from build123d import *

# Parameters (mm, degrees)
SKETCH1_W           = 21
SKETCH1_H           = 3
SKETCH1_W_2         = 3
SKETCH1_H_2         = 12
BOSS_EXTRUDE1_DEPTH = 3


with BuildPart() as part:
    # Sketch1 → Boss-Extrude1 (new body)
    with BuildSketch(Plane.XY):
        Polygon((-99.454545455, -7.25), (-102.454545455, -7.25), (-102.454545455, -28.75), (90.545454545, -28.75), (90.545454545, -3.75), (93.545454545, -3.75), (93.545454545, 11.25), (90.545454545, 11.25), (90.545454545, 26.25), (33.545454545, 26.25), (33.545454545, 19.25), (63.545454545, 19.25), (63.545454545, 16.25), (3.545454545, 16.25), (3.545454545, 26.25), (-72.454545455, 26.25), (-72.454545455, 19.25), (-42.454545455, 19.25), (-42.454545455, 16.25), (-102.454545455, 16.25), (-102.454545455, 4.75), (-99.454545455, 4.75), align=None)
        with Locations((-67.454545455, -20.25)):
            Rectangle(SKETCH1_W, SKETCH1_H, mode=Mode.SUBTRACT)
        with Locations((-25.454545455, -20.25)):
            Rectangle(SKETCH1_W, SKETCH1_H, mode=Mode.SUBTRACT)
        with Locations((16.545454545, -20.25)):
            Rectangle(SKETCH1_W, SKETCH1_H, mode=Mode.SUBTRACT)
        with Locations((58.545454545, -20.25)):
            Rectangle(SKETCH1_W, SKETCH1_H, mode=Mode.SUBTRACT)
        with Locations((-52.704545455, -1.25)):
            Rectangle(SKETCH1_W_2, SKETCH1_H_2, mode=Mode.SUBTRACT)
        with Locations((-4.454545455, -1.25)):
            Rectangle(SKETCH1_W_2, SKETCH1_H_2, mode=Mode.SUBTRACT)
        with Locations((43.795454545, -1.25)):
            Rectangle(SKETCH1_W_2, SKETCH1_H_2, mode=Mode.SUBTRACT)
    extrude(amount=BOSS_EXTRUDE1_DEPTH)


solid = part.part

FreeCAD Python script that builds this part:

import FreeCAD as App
import Part
import Sketcher
from FreeCAD import Vector


def add_polygon(sketch, points):
    """Adds a closed chain of lines whose ends are joined by coincident constraints."""
    first, n = sketch.GeometryCount, len(points)
    for a, b in zip(points, points[1:] + points[:1]):
        sketch.addGeometry(Part.LineSegment(App.Vector(*a, 0), App.Vector(*b, 0)), False)
    for i in range(n):
        sketch.addConstraint(Sketcher.Constraint("Coincident", first + i, 2, first + (i + 1) % n, 1))

doc = App.newDocument("Part")
body = doc.addObject("PartDesign::Body", "Body")

# Sketch on XY plane
sketch1 = doc.addObject("Sketcher::SketchObject", "Sketch")
body.addObject(sketch1)
sketch1.AttachmentSupport = (doc.XY_Plane, [""])
sketch1.MapMode = "FlatFace"
add_polygon(sketch1, [(-99.5, -7.2), (-102.5, -7.2), (-102.5, -28.8), (90.5, -28.8), (90.5, -3.8), (93.5, -3.8), (93.5, 11.2), (90.5, 11.2), (90.5, 26.2), (33.5, 26.2), (33.5, 19.2), (63.5, 19.2), (63.5, 16.2), (3.5, 16.2), (3.5, 26.2), (-72.5, 26.2), (-72.5, 19.2), (-42.5, 19.2), (-42.5, 16.2), (-102.5, 16.2), (-102.5, 4.8), (-99.5, 4.8)])  # lines 0-21
add_polygon(sketch1, [(-57, -21.8), (-78, -21.8), (-78, -18.8), (-57, -18.8)])  # lines 22-25
add_polygon(sketch1, [(-15, -21.8), (-36, -21.8), (-36, -18.8), (-15, -18.8)])  # lines 26-29
add_polygon(sketch1, [(27, -21.8), (6, -21.8), (6, -18.8), (27, -18.8)])  # lines 30-33
add_polygon(sketch1, [(69, -21.8), (48, -21.8), (48, -18.8), (69, -18.8)])  # lines 34-37
add_polygon(sketch1, [(-51.2, -7.2), (-54.2, -7.2), (-54.2, 4.8), (-51.2, 4.8)])  # lines 38-41
add_polygon(sketch1, [(-3, -7.2), (-6, -7.2), (-6, 4.8), (-3, 4.8)])  # lines 42-45
add_polygon(sketch1, [(45.3, -7.2), (42.3, -7.2), (42.3, 4.8), (45.3, 4.8)])  # lines 46-49
sketch1.addConstraint([
    Sketcher.Constraint("Horizontal", 0),
    Sketcher.Constraint("Vertical", 1),
    Sketcher.Constraint("Horizontal", 2),
    Sketcher.Constraint("Vertical", 3),
    Sketcher.Constraint("Horizontal", 4),
    Sketcher.Constraint("Vertical", 5),
    Sketcher.Constraint("Horizontal", 6),
    Sketcher.Constraint("Vertical", 7),
    Sketcher.Constraint("Horizontal", 8),
    Sketcher.Constraint("Vertical", 9),
    Sketcher.Constraint("Horizontal", 10),
    Sketcher.Constraint("Vertical", 11),
    Sketcher.Constraint("Horizontal", 12),
    Sketcher.Constraint("Vertical", 13),
    Sketcher.Constraint("Horizontal", 14),
    Sketcher.Constraint("Vertical", 15),
    Sketcher.Constraint("Horizontal", 16),
    Sketcher.Constraint("Vertical", 17),
    Sketcher.Constraint("Horizontal", 18),
    Sketcher.Constraint("Vertical", 19),
    Sketcher.Constraint("Horizontal", 20),
    Sketcher.Constraint("Vertical", 21),
    Sketcher.Constraint("Horizontal", 22),
    Sketcher.Constraint("Vertical", 23),
    Sketcher.Constraint("Horizontal", 24),
    Sketcher.Constraint("Vertical", 25),
    Sketcher.Constraint("Horizontal", 26),
    Sketcher.Constraint("Vertical", 27),
    Sketcher.Constraint("Horizontal", 28),
    Sketcher.Constraint("Vertical", 29),
    Sketcher.Constraint("Horizontal", 30),
    Sketcher.Constraint("Vertical", 31),
    Sketcher.Constraint("Horizontal", 32),
    Sketcher.Constraint("Vertical", 33),
    Sketcher.Constraint("Horizontal", 34),
    Sketcher.Constraint("Vertical", 35),
    Sketcher.Constraint("Horizontal", 36),
    Sketcher.Constraint("Vertical", 37),
    Sketcher.Constraint("Horizontal", 38),
    Sketcher.Constraint("Vertical", 39),
    Sketcher.Constraint("Horizontal", 40),
    Sketcher.Constraint("Vertical", 41),
    Sketcher.Constraint("Horizontal", 42),
    Sketcher.Constraint("Vertical", 43),
    Sketcher.Constraint("Horizontal", 44),
    Sketcher.Constraint("Vertical", 45),
    Sketcher.Constraint("Horizontal", 46),
    Sketcher.Constraint("Vertical", 47),
    Sketcher.Constraint("Horizontal", 48),
    Sketcher.Constraint("Vertical", 49),
    Sketcher.Constraint("Horizontal", 8, 2, 13, 2),
    Sketcher.Constraint("Horizontal", 10, 2, 15, 2),
    Sketcher.Constraint("Horizontal", 12, 2, 17, 2),
    Sketcher.Constraint("Horizontal", 25, 2, 26, 2),
    Sketcher.Constraint("Horizontal", 24, 2, 27, 2),
    Sketcher.Constraint("Horizontal", 29, 2, 30, 2),
    Sketcher.Constraint("Horizontal", 28, 2, 31, 2),
    Sketcher.Constraint("Horizontal", 33, 2, 34, 2),
    Sketcher.Constraint("Horizontal", 32, 2, 35, 2),
    Sketcher.Constraint("Horizontal", 21, 2, 38, 2),
    Sketcher.Constraint("Horizontal", 20, 2, 39, 2),
    Sketcher.Constraint("Horizontal", 41, 2, 42, 2),
    Sketcher.Constraint("Horizontal", 40, 2, 43, 2),
    Sketcher.Constraint("Horizontal", 45, 2, 46, 2),
    Sketcher.Constraint("Horizontal", 44, 2, 47, 2),
    Sketcher.Constraint("Vertical", 3, 2, 6, 2),
    Sketcher.Constraint("Vertical", 1, 2, 18, 2),
    Sketcher.Constraint("Equal", 0, 4),
    Sketcher.Constraint("Equal", 10, 16),
    Sketcher.Constraint("Equal", 12, 18),
    Sketcher.Constraint("Equal", 24, 26),
    Sketcher.Constraint("Equal", 28, 30),
    Sketcher.Constraint("Equal", 32, 34),
    Sketcher.Constraint("Equal", 20, 38),
    Sketcher.Constraint("Equal", 40, 42),
    Sketcher.Constraint("Equal", 44, 46),
    Sketcher.Constraint("Equal", 5, 7),
    Sketcher.Constraint("Equal", 48, 11),
    Sketcher.Constraint("Equal", 17, 23),
    Sketcher.Constraint("DistanceX", 0, 2, 0, 1, 3.0),
    Sketcher.Constraint("DistanceX", 2, 1, 2, 2, 193.0),
    Sketcher.Constraint("DistanceX", 8, 2, 8, 1, 57.0),
    Sketcher.Constraint("DistanceX", 10, 1, 10, 2, 30.0),
    Sketcher.Constraint("DistanceX", 12, 2, 12, 1, 60.0),
    Sketcher.Constraint("DistanceX", 22, 2, 22, 1, 21.0),
    Sketcher.Constraint("DistanceY", 3, 1, 3, 2, 25.0),
    Sketcher.Constraint("DistanceY", 5, 1, 5, 2, 15.0),
    Sketcher.Constraint("DistanceY", 9, 2, 9, 1, 7.0),
    Sketcher.Constraint("DistanceY", 21, 2, 21, 1, 12.0),
    Sketcher.Constraint("DistanceY", 1, 2, 1, 1, 21.5),
    Sketcher.Constraint("DistanceY", 1, 2, 22, 2, 7.0),
    Sketcher.Constraint("DistanceX", 25, 2, 26, 2, 21.0),
    Sketcher.Constraint("DistanceX", 29, 2, 30, 2, 21.0),
    Sketcher.Constraint("DistanceX", 33, 2, 34, 2, 21.0),
    Sketcher.Constraint("DistanceX", 28, 2, 42, 2, 9.0),
    Sketcher.Constraint("DistanceX", 1, 2, 22, 2, 24.5),
    Sketcher.Constraint("DistanceY", 0, 2, -1, 1, 7.25),
    Sketcher.Constraint("DistanceX", 24, 2, 38, 2, 2.75),
    Sketcher.Constraint("DistanceX", 46, 2, 35, 2, 5.75),
    Sketcher.Constraint("DistanceX", 0, 2, -1, 1, 102.454545),
])
pad1 = doc.addObject("PartDesign::Pad", "Pad")
body.addObject(pad1)
pad1.Profile = sketch1
pad1.Length = 3

doc.recompute()
